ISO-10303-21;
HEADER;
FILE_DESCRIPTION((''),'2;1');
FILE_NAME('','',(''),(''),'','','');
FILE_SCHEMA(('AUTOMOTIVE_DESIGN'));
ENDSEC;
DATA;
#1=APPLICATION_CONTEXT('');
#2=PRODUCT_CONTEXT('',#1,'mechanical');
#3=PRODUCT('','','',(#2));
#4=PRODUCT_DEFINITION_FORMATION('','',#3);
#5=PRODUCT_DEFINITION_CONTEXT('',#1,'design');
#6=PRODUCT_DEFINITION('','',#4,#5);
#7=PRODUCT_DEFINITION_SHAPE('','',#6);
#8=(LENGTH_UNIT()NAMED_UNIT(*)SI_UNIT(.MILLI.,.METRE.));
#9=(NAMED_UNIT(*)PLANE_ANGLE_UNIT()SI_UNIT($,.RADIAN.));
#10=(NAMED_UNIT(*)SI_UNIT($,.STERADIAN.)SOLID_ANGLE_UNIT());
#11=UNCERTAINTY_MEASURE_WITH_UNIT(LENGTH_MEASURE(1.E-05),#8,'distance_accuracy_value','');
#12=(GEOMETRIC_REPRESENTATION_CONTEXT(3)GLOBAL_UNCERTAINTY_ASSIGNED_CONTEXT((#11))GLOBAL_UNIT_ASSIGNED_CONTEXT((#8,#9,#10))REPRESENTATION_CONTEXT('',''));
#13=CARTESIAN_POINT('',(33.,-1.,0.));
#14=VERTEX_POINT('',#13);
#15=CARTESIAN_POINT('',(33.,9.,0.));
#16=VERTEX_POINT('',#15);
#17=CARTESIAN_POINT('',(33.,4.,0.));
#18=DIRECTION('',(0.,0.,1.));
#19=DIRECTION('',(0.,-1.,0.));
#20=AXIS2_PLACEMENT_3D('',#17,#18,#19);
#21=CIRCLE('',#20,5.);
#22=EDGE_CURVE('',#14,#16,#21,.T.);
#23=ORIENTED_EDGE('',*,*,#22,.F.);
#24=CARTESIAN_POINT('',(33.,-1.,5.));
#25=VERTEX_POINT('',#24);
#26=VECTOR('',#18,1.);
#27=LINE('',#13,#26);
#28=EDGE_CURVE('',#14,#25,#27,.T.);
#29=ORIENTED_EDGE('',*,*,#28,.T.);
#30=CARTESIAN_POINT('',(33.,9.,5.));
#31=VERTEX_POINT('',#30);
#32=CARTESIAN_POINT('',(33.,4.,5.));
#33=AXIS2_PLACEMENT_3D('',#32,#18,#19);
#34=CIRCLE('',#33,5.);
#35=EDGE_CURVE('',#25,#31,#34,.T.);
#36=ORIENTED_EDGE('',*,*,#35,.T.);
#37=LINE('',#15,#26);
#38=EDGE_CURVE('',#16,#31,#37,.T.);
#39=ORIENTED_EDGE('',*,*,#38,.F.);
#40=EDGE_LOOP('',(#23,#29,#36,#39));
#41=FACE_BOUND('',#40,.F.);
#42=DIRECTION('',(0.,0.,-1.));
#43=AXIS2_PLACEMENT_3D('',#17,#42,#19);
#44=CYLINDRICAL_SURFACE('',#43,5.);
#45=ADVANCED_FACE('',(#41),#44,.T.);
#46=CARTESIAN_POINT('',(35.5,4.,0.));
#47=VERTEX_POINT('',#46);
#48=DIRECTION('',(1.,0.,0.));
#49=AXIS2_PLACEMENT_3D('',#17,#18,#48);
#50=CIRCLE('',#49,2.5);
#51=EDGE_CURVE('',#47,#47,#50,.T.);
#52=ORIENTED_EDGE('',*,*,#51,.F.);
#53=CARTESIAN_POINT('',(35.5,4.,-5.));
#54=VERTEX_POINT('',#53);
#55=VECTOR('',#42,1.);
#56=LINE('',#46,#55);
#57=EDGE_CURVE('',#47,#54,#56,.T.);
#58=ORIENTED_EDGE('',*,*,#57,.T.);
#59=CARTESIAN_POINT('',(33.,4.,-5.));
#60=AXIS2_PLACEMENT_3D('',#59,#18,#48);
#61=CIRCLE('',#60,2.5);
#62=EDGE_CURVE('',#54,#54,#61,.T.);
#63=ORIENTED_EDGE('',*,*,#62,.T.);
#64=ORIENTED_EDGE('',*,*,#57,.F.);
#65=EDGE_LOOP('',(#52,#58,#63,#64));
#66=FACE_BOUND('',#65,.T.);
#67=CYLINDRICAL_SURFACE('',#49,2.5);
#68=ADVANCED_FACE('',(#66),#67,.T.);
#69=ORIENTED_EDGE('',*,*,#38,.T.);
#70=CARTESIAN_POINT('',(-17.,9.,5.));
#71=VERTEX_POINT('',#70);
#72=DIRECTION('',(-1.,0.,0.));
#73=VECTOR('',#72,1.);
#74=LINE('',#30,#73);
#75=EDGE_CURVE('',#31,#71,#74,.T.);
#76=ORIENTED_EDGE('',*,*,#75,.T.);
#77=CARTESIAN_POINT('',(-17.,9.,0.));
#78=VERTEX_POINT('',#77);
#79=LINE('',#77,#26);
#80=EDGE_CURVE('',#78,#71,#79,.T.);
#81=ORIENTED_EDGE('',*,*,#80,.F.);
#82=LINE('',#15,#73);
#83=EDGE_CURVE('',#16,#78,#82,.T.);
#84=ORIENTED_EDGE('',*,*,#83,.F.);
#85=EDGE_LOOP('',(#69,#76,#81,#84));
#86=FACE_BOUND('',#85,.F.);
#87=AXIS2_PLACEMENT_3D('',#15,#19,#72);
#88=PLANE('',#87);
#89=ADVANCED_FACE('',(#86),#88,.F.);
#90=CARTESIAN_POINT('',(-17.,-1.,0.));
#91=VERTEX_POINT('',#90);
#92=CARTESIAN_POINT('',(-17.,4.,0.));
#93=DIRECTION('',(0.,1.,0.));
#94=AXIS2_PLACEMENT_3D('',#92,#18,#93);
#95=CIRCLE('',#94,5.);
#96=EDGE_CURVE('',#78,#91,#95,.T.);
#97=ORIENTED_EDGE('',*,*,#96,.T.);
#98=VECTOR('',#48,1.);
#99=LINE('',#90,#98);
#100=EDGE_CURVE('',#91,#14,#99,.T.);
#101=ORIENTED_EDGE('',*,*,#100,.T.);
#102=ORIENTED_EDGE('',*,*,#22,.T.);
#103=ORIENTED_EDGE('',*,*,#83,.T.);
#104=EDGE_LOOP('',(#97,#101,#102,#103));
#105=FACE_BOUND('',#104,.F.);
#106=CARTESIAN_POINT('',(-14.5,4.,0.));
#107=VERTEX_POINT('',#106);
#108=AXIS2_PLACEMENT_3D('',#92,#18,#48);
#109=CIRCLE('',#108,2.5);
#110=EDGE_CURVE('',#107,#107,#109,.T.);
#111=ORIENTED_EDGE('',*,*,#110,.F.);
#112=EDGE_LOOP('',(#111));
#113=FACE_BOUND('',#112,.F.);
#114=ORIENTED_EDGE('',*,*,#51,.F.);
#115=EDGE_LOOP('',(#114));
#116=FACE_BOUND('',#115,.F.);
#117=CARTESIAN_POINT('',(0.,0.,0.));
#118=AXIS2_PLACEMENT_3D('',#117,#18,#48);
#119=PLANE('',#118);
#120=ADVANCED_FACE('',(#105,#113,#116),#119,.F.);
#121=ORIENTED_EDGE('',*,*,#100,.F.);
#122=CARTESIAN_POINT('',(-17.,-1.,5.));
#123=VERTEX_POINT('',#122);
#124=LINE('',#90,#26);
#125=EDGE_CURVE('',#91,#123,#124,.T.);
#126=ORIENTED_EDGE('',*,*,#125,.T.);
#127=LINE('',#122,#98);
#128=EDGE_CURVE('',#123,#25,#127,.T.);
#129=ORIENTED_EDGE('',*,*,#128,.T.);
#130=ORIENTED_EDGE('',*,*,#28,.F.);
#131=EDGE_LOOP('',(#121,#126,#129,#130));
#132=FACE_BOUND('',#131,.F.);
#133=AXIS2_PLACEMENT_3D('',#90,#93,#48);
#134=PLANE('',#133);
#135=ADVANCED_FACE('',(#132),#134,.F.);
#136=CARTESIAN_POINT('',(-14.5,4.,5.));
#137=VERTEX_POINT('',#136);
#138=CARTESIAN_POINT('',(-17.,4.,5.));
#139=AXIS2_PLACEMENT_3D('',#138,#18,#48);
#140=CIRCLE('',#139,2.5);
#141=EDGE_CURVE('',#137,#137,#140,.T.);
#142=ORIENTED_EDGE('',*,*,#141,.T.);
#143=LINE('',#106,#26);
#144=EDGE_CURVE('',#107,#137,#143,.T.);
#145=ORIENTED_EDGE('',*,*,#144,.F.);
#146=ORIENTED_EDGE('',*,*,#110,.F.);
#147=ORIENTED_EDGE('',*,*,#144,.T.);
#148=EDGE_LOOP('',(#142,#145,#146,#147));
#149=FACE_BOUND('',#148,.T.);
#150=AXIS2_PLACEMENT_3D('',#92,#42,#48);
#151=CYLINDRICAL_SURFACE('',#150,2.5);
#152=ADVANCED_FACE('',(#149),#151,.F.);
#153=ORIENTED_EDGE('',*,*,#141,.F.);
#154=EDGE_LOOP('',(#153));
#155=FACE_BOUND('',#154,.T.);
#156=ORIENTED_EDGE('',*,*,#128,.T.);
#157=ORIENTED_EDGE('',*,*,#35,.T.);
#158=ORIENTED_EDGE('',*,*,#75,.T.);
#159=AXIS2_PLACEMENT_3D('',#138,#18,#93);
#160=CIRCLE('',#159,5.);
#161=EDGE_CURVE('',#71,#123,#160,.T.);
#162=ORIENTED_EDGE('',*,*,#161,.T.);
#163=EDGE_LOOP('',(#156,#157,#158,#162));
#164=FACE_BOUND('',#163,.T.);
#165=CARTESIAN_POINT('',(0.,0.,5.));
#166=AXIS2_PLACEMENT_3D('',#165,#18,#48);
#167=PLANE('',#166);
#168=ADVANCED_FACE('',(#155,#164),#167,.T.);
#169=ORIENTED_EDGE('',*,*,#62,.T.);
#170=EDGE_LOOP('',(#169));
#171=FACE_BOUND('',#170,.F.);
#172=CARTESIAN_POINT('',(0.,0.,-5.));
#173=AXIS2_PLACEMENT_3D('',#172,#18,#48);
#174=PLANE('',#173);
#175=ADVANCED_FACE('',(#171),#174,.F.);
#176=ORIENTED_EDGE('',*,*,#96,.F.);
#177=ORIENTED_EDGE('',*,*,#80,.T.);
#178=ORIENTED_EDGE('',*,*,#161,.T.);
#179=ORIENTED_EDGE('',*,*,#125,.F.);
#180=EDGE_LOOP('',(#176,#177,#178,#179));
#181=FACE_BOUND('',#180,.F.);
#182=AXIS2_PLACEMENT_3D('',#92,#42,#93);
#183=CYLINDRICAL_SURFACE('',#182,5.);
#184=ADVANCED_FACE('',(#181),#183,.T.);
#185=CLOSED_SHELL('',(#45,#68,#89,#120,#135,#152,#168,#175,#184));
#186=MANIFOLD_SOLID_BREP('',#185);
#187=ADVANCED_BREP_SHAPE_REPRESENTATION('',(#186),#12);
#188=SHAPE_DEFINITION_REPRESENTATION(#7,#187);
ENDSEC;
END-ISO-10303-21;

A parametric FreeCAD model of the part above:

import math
import FreeCAD as App
import Part
import Sketcher

V = App.Vector
Q = App.Units.Quantity

doc = App.newDocument("Part")
body = doc.addObject("PartDesign::Body", "Body")

# Sketch on XY plane
sketch1 = body.newObject("Sketcher::SketchObject", "Sketch")
sketch1.AttachmentSupport = (doc.getObject("XY_Plane"), [""])
sketch1.MapMode = "FlatFace"
sketch1.addGeometry([
    Part.ArcOfCircle(Part.Circle(V(-17, 4, 0), V(0, 0, 1), 5), math.radians(90), math.radians(270)),  # 0
    Part.LineSegment(V(-17, -1, 0), V(33, -1, 0)),  # 1
    Part.ArcOfCircle(Part.Circle(V(33, 4, 0), V(0, 0, 1), 5), math.radians(-90), math.radians(90)),  # 2
    Part.LineSegment(V(33, 9, 0), V(-17, 9, 0)),  # 3
    Part.Circle(V(-17, 4, 0), V(0, 0, 1), 2.5),  # 4
], False)
sketch1.addConstraint([
    Sketcher.Constraint("Tangent", 0, 2, 1, 1),
    Sketcher.Constraint("Tangent", 1, 2, 2, 1),
    Sketcher.Constraint("Tangent", 2, 2, 3, 1),
    Sketcher.Constraint("Tangent", 3, 2, 0, 1),
    Sketcher.Constraint("Horizontal", 1),
    Sketcher.Constraint("Horizontal", 3),
    Sketcher.Constraint("Coincident", 4, 3, 0, 3),
    Sketcher.Constraint("Diameter", 4, Q("5 mm")),
    Sketcher.Constraint("Radius", 0, Q("5 mm")),
    Sketcher.Constraint("DistanceX", 1, 1, 1, 2, Q("50 mm")),
    Sketcher.Constraint("DistanceX", 0, 3, -1, 1, Q("17 mm")),
    Sketcher.Constraint("DistanceY", -1, 1, 0, 3, Q("4 mm")),
])
pad1 = body.newObject("PartDesign::Pad", "Pad")
pad1.Profile = sketch1
pad1.Length = 5

# Sketch on XY plane
sketch2 = body.newObject("Sketcher::SketchObject", "Sketch001")
sketch2.AttachmentSupport = (doc.getObject("XY_Plane"), [""])
sketch2.MapMode = "FlatFace"
sketch2.addGeometry(Part.Circle(V(33, 4, 0), V(0, 0, 1), 2.5), False)
sketch2.addConstraint([
    Sketcher.Constraint("Diameter", 0, Q("5 mm")),
    Sketcher.Constraint("DistanceX", -1, 1, 0, 3, Q("33 mm")),
    Sketcher.Constraint("DistanceY", -1, 1, 0, 3, Q("4 mm")),
])
pad2 = body.newObject("PartDesign::Pad", "Pad001")
pad2.Profile = sketch2
pad2.Length = 5
pad2.Reversed = True

doc.recompute()
